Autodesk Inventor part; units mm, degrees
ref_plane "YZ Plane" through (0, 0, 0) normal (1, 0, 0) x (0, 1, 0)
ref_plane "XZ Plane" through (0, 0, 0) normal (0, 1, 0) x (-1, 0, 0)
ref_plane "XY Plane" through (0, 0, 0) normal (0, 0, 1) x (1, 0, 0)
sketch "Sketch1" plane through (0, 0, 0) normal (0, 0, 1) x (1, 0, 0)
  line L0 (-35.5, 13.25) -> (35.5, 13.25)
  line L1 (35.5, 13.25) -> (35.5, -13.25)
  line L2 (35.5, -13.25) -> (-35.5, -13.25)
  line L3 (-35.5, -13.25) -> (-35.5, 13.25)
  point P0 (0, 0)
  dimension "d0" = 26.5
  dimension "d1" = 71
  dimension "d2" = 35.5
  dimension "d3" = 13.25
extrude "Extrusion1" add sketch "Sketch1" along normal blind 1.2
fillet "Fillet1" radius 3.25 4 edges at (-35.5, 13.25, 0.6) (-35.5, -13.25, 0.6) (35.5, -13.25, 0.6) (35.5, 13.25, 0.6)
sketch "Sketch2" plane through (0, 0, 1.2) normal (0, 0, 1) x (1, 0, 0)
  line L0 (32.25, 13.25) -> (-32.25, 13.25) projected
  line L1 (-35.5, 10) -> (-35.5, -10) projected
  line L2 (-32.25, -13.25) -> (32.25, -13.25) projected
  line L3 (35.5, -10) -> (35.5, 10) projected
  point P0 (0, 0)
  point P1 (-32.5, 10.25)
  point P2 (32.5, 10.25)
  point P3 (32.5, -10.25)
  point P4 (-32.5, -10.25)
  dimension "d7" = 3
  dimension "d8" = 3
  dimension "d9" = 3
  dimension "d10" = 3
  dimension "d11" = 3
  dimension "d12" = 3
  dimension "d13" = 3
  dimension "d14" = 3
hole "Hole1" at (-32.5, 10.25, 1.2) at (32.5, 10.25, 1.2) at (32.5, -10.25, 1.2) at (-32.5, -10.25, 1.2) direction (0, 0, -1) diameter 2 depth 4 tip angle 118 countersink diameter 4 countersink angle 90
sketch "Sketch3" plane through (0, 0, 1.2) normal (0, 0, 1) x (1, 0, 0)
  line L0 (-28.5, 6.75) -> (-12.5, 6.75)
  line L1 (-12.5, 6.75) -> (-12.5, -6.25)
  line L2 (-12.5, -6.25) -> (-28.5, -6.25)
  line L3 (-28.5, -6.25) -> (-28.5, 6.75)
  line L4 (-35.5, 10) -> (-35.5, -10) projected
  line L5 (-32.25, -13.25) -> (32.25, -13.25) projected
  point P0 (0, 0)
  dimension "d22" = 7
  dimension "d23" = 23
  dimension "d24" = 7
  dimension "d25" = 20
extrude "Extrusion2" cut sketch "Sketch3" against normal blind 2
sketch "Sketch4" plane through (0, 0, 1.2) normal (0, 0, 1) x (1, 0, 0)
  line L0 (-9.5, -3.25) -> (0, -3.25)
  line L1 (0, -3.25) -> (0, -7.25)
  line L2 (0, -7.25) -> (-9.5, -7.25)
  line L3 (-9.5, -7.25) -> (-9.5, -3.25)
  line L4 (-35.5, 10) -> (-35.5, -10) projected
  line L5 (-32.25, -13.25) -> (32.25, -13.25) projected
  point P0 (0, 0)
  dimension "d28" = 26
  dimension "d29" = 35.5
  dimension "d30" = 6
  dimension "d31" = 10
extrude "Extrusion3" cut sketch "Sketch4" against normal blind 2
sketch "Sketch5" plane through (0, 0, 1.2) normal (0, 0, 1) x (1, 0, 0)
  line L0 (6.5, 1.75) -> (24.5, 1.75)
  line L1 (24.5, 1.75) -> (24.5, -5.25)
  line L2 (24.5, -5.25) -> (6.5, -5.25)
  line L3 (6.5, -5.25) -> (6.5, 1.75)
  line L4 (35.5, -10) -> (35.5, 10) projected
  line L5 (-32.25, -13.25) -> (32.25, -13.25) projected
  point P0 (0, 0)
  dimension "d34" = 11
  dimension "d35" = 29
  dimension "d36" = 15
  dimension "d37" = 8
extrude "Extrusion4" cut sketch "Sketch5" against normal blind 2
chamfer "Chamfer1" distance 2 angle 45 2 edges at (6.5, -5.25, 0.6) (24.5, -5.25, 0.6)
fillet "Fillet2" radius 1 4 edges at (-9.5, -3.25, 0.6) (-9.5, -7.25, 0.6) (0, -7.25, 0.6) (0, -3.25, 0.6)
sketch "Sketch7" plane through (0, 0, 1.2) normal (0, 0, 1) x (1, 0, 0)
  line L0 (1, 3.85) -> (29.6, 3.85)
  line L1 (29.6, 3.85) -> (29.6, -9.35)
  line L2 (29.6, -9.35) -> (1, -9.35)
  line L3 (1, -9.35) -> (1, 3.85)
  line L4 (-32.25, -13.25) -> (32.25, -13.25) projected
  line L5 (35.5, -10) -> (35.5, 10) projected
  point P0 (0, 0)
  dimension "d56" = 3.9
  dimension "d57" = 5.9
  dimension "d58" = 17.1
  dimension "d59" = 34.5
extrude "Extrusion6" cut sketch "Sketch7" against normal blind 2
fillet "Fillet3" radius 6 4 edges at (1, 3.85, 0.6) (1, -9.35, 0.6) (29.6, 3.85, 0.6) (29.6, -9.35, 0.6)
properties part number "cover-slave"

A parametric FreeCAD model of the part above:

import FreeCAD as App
import Part
import Sketcher

V = App.Vector
Q = App.Units.Quantity


def edges_at(feature, points):
    """Names of the edges that pass closest to the given points."""
    edges = feature.Shape.Edges
    near = lambda p: min(range(len(edges)), key=lambda i: edges[i].distToShape(Part.Vertex(*p))[0])
    return sorted({f"Edge{near(p) + 1}" for p in points})


def add_polygon(sketch, points):
    """Adds a closed chain of lines whose ends are joined by coincident constraints."""
    first, n = sketch.GeometryCount, len(points)
    for a, b in zip(points, points[1:] + points[:1]):
        sketch.addGeometry(Part.LineSegment(App.Vector(*a, 0), App.Vector(*b, 0)), False)
    for i in range(n):
        sketch.addConstraint(Sketcher.Constraint("Coincident", first + i, 2, first + (i + 1) % n, 1))

doc = App.newDocument("Part")
body = doc.addObject("PartDesign::Body", "Body")

sketch1 = body.newObject("Sketcher::SketchObject", "Sketch")
sketch1.AttachmentSupport = (doc.getObject("XY_Plane"), [""])
sketch1.MapMode = "FlatFace"
add_polygon(sketch1, [(36, 13), (-36, 13), (-36, -13), (36, -13)])
sketch1.addConstraint([
    Sketcher.Constraint("Horizontal", 0),
    Sketcher.Constraint("Vertical", 1),
    Sketcher.Constraint("Horizontal", 2),
    Sketcher.Constraint("Vertical", 3),
    Sketcher.Constraint("Symmetric", 0, 2, 2, 2, -1, 1),
    Sketcher.Constraint("DistanceX", 0, 2, 0, 1, Q("71 mm")),
    Sketcher.Constraint("DistanceY", 1, 2, 1, 1, Q("26.5 mm")),
])
pad1 = body.newObject("PartDesign::Pad", "Pad")
pad1.Profile = sketch1
pad1.Length = 1.2
doc.recompute()

fillet = body.newObject("PartDesign::Fillet", "Fillet")
fillet.Base = (pad1, edges_at(pad1, [
    (-35.5, 13.25, 0.6),
    (-35.5, -13.25, 0.6),
    (35.5, -13.25, 0.6),
    (35.5, 13.25, 0.6),
]))
fillet.Radius = 3.25

sketch2 = body.newObject("Sketcher::SketchObject", "Sketch001")
sketch2.AttachmentSupport = (doc.getObject("XY_Plane"), [""])
sketch2.MapMode = "FlatFace"
sketch2.AttachmentOffset = App.Placement(V(0, 0, 1.2), App.Rotation())
sketch2.addGeometry([
    Part.Circle(V(-32.5, 10.2, 0), V(0, 0, 1), 1),
    Part.Circle(V(32.5, 10.2, 0), V(0, 0, 1), 1),
    Part.Circle(V(32.5, -10.2, 0), V(0, 0, 1), 1),
    Part.Circle(V(-32.5, -10.2, 0), V(0, 0, 1), 1),
], False)
sketch2.addConstraint([
    Sketcher.Constraint("Equal", 0, 1),
    Sketcher.Constraint("Equal", 1, 2),
    Sketcher.Constraint("Equal", 2, 3),
    Sketcher.Constraint("Symmetric", 0, 3, 2, 3, -1, 1),
    Sketcher.Constraint("Symmetric", 1, 3, 3, 3, -1, 1),
    Sketcher.Constraint("Symmetric", 0, 3, 1, 3, -2),
    Sketcher.Constraint("Diameter", 0, Q("2 mm")),
    Sketcher.Constraint("DistanceX", 0, 3, 1, 3, Q("65 mm")),
    Sketcher.Constraint("DistanceY", 2, 3, 1, 3, Q("20.5 mm")),
])
doc.recompute()
hole = body.newObject("PartDesign::Hole", "Hole")
hole.Profile = sketch2
hole.ThreadType = "None"
hole.Diameter = 2
hole.DepthType = "Dimension"
hole.Depth = 4
hole.DrillPoint = "Angled"
hole.DrillPointAngle = 118
hole.HoleCutType = "Countersink"
hole.HoleCutDiameter = 4
hole.HoleCutCountersinkAngle = 90

sketch3 = body.newObject("Sketcher::SketchObject", "Sketch002")
sketch3.AttachmentSupport = (doc.getObject("XY_Plane"), [""])
sketch3.MapMode = "FlatFace"
sketch3.AttachmentOffset = App.Placement(V(0, 0, 1.2), App.Rotation())
add_polygon(sketch3, [(-12, 7), (-28, 7), (-28, -6), (-12, -6)])
sketch3.addConstraint([
    Sketcher.Constraint("Horizontal", 0),
    Sketcher.Constraint("Vertical", 1),
    Sketcher.Constraint("Horizontal", 2),
    Sketcher.Constraint("Vertical", 3),
    Sketcher.Constraint("DistanceX", 0, 2, 0, 1, Q("16 mm")),
    Sketcher.Constraint("DistanceY", 1, 2, 1, 1, Q("13 mm")),
    Sketcher.Constraint("DistanceX", 0, 2, -1, 1, Q("28.5 mm")),
    Sketcher.Constraint("DistanceY", -1, 1, 0, 2, Q("6.75 mm")),
])
pocket1 = body.newObject("PartDesign::Pocket", "Pocket")
pocket1.Profile = sketch3
pocket1.Length = 2

sketch4 = body.newObject("Sketcher::SketchObject", "Sketch003")
sketch4.AttachmentSupport = (doc.getObject("XY_Plane"), [""])
sketch4.MapMode = "FlatFace"
sketch4.AttachmentOffset = App.Placement(V(0, 0, 1.2), App.Rotation())
add_polygon(sketch4, [(0, -3.2), (-9.5, -3.2), (-9.5, -7.2), (0, -7.2)])
sketch4.addConstraint([
    Sketcher.Constraint("Horizontal", 0),
    Sketcher.Constraint("Vertical", 1),
    Sketcher.Constraint("Horizontal", 2),
    Sketcher.Constraint("Vertical", 3),
    Sketcher.Constraint("PointOnObject", 2, 2, -2),
    Sketcher.Constraint("DistanceY", 1, 2, 1, 1, Q("4 mm")),
    Sketcher.Constraint("DistanceX", 0, 2, 0, 1, Q("9.5 mm")),
    Sketcher.Constraint("DistanceY", 0, 2, -1, 1, Q("3.25 mm")),
])
pocket2 = body.newObject("PartDesign::Pocket", "Pocket001")
pocket2.Profile = sketch4
pocket2.Length = 2

sketch5 = body.newObject("Sketcher::SketchObject", "Sketch004")
sketch5.AttachmentSupport = (doc.getObject("XY_Plane"), [""])
sketch5.MapMode = "FlatFace"
sketch5.AttachmentOffset = App.Placement(V(0, 0, 1.2), App.Rotation())
add_polygon(sketch5, [(24, 2), (6, 2), (6, -5), (24, -5)])
sketch5.addConstraint([
    Sketcher.Constraint("Horizontal", 0),
    Sketcher.Constraint("Vertical", 1),
    Sketcher.Constraint("Horizontal", 2),
    Sketcher.Constraint("Vertical", 3),
    Sketcher.Constraint("DistanceX", 0, 2, 0, 1, Q("18 mm")),
    Sketcher.Constraint("DistanceY", 1, 2, 1, 1, Q("7 mm")),
    Sketcher.Constraint("DistanceX", -1, 1, 0, 2, Q("6.5 mm")),
    Sketcher.Constraint("DistanceY", -1, 1, 0, 2, Q("1.75 mm")),
])
pocket3 = body.newObject("PartDesign::Pocket", "Pocket002")
pocket3.Profile = sketch5
pocket3.Length = 2
doc.recompute()

chamfer = body.newObject("PartDesign::Chamfer", "Chamfer")
chamfer.Base = (pocket3, edges_at(pocket3, [(6.5, -5.25, 0.6), (24.5, -5.25, 0.6)]))
chamfer.Size = 2
doc.recompute()

fillet2 = body.newObject("PartDesign::Fillet", "Fillet001")
fillet2.Base = (chamfer, edges_at(chamfer, [
    (-9.5, -3.25, 0.6),
    (-9.5, -7.25, 0.6),
    (0, -7.25, 0.6),
    (0, -3.25, 0.6),
]))
fillet2.Radius = 1

sketch6 = body.newObject("Sketcher::SketchObject", "Sketch005")
sketch6.AttachmentSupport = (doc.getObject("XY_Plane"), [""])
sketch6.MapMode = "FlatFace"
sketch6.AttachmentOffset = App.Placement(V(0, 0, 1.2), App.Rotation())
add_polygon(sketch6, [(30, 4), (1, 4), (1, -9), (30, -9)])
sketch6.addConstraint([
    Sketcher.Constraint("Horizontal", 0),
    Sketcher.Constraint("Vertical", 1),
    Sketcher.Constraint("Horizontal", 2),
    Sketcher.Constraint("Vertical", 3),
    Sketcher.Constraint("DistanceX", 0, 2, 0, 1, Q("28.6 mm")),
    Sketcher.Constraint("DistanceY", 1, 2, 1, 1, Q("13.2 mm")),
    Sketcher.Constraint("DistanceX", -1, 1, 0, 2, Q("1 mm")),
    Sketcher.Constraint("DistanceY", -1, 1, 0, 2, Q("3.85 mm")),
])
pocket4 = body.newObject("PartDesign::Pocket", "Pocket003")
pocket4.Profile = sketch6
pocket4.Length = 2
doc.recompute()

fillet3 = body.newObject("PartDesign::Fillet", "Fillet002")
fillet3.Base = (pocket4, edges_at(pocket4, [
    (1, 3.85, 0.6),
    (1, -9.35, 0.6),
    (29.6, 3.85, 0.6),
    (29.6, -9.35, 0.6),
]))
fillet3.Radius = 6

doc.recompute()
